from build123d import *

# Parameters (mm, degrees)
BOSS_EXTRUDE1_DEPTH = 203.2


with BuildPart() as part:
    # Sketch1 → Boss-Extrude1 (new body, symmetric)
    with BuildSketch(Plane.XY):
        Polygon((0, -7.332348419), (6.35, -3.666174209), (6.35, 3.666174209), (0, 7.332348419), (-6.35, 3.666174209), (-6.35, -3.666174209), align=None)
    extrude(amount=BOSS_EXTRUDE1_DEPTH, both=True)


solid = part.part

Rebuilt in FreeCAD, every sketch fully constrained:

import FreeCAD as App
import Part
import Sketcher
Q = App.Units.Quantity

doc = App.newDocument("Part")
body = doc.addObject("PartDesign::Body", "Body")

sketch1 = body.newObject("Sketcher::SketchObject", "Sketch")
sketch1.AttachmentSupport = (doc.getObject("XY_Plane"), [""])
sketch1.MapMode = "FlatFace"
sketch1.addGeometry(Part.LineSegment(App.Vector(0, -7.332348, 0), App.Vector(6.35, -3.666174, 0)), False)
sketch1.addGeometry(Part.LineSegment(App.Vector(6.35, -3.666174, 0), App.Vector(6.35, 3.666174, 0)), False)
sketch1.addGeometry(Part.LineSegment(App.Vector(6.35, 3.666174, 0), App.Vector(0, 7.332348, 0)), False)
sketch1.addGeometry(Part.LineSegment(App.Vector(0, 7.332348, 0), App.Vector(-6.35, 3.666174, 0)), False)
sketch1.addGeometry(Part.LineSegment(App.Vector(-6.35, 3.666174, 0), App.Vector(-6.35, -3.666174, 0)), False)
sketch1.addGeometry(Part.LineSegment(App.Vector(-6.35, -3.666174, 0), App.Vector(0, -7.332348, 0)), False)
sketch1.addConstraint(Sketcher.Constraint("Coincident", 0, 2, 1, 1))
sketch1.addConstraint(Sketcher.Constraint("Coincident", 1, 2, 2, 1))
sketch1.addConstraint(Sketcher.Constraint("Coincident", 2, 2, 3, 1))
sketch1.addConstraint(Sketcher.Constraint("Coincident", 3, 2, 4, 1))
sketch1.addConstraint(Sketcher.Constraint("Coincident", 4, 2, 5, 1))
sketch1.addConstraint(Sketcher.Constraint("Coincident", 5, 2, 0, 1))
sketch1.addConstraint(Sketcher.Constraint("Vertical", 1))
sketch1.addConstraint(Sketcher.Constraint("Vertical", 4))
sketch1.addConstraint(Sketcher.Constraint("Symmetric", 0, 2, 3, 2, -1, 1))
sketch1.addConstraint(Sketcher.Constraint("Symmetric", 2, 2, 5, 2, -1, 1))
sketch1.addConstraint(Sketcher.Constraint("PointOnObject", 2, 2, -2))
sketch1.addConstraint(Sketcher.Constraint("Parallel", 2, 5))
sketch1.addConstraint(Sketcher.Constraint("Horizontal", 1, 2, 3, 2))
sketch1.addConstraint(Sketcher.Constraint("Angle", 0, Q("30 deg")))
sketch1.addConstraint(Sketcher.Constraint("DistanceX", 3, 2, 1, 2, Q("0.5 in")))
sketch1.addConstraint(Sketcher.Constraint("DistanceY", 1, 1, 1, 2, 7.332348))
pad1 = body.newObject("PartDesign::Pad", "Pad")
pad1.Profile = sketch1
pad1.Length = Q("16 in")
pad1.Midplane = True

doc.recompute()
